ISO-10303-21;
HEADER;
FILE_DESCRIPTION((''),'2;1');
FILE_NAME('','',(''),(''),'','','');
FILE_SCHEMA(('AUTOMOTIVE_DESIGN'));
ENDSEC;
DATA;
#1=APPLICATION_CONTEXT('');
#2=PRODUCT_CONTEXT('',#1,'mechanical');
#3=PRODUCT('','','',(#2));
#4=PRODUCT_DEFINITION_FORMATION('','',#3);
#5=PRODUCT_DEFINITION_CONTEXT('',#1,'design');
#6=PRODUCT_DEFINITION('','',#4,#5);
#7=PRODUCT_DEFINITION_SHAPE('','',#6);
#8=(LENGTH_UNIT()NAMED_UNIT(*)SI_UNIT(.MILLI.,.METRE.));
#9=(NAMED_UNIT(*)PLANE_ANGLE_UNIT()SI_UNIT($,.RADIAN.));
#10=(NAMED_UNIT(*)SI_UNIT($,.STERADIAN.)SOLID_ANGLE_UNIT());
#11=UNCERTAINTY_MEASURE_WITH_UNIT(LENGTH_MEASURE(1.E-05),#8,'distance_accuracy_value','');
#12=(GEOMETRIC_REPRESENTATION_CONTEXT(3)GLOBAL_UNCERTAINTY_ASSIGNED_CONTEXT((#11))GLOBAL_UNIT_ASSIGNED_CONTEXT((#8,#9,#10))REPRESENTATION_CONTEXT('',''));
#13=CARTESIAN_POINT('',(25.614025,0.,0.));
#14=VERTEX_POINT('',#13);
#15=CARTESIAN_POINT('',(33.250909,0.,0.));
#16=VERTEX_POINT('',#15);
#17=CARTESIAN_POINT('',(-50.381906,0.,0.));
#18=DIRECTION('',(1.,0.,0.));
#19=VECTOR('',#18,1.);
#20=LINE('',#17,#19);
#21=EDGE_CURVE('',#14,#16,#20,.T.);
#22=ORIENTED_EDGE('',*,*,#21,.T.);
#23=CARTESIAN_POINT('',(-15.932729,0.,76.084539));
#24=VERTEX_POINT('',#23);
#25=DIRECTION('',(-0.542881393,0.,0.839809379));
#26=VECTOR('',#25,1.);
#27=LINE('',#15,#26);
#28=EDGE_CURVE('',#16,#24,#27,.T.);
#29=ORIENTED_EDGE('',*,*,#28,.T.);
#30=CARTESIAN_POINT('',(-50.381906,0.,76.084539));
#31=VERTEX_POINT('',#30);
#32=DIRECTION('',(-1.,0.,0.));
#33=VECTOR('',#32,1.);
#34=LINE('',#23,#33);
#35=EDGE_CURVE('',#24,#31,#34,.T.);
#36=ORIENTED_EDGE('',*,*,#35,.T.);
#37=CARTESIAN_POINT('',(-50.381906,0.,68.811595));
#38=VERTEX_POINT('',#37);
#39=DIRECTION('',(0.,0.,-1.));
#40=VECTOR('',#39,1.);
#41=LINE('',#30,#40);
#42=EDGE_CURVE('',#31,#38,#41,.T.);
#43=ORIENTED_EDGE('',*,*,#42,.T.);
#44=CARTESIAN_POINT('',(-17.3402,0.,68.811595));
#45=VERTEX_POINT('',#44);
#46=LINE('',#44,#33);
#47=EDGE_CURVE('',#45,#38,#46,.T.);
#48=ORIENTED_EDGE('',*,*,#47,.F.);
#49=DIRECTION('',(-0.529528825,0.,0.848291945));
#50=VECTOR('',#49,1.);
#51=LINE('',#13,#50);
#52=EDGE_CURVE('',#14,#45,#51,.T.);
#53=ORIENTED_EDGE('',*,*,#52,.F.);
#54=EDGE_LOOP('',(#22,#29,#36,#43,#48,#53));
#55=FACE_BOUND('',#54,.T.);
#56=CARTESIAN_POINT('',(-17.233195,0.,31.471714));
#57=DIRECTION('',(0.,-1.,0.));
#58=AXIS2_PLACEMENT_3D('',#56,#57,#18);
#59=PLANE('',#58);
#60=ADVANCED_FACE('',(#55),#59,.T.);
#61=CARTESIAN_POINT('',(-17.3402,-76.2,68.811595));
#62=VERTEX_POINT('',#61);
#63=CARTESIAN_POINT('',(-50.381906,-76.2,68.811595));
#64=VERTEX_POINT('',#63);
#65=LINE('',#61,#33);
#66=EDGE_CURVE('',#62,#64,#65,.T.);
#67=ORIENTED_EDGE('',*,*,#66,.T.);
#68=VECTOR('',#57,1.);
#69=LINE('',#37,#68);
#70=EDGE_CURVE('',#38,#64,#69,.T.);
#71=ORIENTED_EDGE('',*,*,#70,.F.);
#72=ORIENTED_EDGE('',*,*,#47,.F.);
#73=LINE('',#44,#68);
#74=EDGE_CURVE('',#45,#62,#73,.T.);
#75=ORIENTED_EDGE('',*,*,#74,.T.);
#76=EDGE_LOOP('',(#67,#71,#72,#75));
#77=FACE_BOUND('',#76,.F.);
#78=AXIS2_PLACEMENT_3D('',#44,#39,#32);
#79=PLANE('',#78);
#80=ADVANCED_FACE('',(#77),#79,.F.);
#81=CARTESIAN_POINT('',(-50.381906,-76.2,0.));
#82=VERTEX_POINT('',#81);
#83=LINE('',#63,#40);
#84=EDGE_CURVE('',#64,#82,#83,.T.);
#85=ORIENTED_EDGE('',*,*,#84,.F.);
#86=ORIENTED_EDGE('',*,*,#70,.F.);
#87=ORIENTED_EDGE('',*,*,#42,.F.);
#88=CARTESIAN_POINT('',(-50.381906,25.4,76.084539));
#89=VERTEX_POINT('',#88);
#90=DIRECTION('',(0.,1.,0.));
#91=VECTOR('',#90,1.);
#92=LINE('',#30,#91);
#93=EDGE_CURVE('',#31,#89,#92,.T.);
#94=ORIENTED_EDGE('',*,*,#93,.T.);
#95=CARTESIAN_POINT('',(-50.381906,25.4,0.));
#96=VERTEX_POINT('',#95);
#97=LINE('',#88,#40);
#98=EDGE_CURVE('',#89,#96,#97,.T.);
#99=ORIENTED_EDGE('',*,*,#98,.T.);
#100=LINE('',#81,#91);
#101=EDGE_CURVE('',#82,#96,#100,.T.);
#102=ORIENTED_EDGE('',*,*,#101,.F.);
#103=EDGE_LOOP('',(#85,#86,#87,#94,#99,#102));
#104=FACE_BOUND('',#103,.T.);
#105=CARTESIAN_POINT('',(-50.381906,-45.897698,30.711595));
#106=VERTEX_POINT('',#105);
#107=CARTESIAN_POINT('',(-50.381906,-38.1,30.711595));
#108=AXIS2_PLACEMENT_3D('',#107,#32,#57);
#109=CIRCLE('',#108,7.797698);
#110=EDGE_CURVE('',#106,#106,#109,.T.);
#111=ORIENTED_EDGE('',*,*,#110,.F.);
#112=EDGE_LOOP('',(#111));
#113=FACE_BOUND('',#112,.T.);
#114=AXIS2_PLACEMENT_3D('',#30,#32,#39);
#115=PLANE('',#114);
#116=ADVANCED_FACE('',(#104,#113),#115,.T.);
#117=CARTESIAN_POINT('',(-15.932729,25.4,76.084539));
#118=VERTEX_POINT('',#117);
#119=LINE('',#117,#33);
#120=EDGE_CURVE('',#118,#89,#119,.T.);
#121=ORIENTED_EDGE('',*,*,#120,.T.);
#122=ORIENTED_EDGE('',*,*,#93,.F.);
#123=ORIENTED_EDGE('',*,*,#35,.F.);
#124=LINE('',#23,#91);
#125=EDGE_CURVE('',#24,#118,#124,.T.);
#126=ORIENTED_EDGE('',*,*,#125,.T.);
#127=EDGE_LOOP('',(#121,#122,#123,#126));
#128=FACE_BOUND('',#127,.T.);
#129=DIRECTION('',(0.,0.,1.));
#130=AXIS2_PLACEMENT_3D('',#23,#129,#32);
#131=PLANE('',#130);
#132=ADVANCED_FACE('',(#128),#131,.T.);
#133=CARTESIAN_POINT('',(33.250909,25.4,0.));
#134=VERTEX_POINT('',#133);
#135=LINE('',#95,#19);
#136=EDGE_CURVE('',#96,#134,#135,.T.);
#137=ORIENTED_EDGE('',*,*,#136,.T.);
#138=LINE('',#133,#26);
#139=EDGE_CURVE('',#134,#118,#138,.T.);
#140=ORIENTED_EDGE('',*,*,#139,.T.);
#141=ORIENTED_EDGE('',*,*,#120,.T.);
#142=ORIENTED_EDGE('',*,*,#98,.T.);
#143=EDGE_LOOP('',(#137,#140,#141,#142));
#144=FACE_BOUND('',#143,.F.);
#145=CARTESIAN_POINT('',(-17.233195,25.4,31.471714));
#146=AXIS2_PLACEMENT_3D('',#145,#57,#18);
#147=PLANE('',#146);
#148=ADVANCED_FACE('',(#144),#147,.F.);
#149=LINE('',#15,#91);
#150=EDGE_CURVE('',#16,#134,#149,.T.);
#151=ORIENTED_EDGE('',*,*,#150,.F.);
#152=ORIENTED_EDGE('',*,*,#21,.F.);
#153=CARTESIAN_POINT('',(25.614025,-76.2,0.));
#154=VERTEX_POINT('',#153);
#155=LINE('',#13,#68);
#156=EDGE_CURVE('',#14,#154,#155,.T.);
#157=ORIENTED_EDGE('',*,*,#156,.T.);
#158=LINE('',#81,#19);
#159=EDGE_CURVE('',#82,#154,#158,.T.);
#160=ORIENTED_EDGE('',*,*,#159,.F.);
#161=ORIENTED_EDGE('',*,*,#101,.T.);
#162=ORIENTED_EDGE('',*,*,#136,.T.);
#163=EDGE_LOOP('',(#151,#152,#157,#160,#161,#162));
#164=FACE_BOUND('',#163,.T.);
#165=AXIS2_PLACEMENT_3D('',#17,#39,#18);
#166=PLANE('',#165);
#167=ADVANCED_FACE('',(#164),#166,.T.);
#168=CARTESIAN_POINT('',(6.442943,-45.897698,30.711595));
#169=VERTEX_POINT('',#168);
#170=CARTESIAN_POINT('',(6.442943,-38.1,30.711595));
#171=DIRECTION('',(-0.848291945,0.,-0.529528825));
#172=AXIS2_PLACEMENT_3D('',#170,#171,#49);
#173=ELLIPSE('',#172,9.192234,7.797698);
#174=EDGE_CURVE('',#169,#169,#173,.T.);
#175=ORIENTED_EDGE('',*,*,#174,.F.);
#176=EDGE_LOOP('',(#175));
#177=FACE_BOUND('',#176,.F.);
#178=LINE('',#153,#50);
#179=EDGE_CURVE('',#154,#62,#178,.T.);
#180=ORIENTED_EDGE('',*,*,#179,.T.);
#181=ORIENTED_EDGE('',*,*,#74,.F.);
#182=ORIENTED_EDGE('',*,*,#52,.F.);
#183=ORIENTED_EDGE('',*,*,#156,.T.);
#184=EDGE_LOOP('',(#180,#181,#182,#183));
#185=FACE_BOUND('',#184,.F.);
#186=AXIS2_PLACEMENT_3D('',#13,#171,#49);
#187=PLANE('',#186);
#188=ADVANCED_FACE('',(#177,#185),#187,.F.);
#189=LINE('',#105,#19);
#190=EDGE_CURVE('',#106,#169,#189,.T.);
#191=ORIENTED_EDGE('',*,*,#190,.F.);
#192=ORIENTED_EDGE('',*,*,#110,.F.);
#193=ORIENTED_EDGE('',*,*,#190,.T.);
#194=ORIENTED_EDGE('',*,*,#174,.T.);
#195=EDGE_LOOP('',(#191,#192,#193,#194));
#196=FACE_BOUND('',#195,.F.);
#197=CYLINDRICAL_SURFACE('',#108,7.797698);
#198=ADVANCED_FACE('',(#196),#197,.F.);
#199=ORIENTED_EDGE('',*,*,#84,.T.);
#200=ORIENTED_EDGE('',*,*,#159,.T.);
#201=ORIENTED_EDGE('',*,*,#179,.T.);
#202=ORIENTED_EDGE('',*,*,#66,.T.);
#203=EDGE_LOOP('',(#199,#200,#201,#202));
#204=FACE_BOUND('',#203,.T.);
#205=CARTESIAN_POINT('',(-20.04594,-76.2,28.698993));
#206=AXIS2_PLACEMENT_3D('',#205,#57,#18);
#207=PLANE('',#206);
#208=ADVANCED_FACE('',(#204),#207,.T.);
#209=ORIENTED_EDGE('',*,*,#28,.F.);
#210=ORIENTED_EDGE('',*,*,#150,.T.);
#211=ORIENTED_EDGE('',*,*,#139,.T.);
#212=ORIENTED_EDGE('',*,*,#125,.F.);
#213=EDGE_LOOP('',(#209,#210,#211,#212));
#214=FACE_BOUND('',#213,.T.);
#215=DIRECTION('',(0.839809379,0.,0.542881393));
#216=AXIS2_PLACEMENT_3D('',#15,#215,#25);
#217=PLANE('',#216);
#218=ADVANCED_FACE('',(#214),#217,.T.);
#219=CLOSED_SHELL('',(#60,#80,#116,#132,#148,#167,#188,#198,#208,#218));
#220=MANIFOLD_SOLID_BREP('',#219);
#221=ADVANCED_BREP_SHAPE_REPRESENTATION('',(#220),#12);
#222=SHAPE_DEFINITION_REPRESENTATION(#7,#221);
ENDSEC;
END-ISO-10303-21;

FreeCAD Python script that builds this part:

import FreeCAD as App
import Part
import Sketcher
Q = App.Units.Quantity


def add_polygon(sketch, points):
    """Adds a closed chain of lines whose ends are joined by coincident constraints."""
    first, n = sketch.GeometryCount, len(points)
    for a, b in zip(points, points[1:] + points[:1]):
        sketch.addGeometry(Part.LineSegment(App.Vector(*a, 0), App.Vector(*b, 0)), False)
    for i in range(n):
        sketch.addConstraint(Sketcher.Constraint("Coincident", first + i, 2, first + (i + 1) % n, 1))

doc = App.newDocument("Part")
body = doc.addObject("PartDesign::Body", "Body")

sketch1 = body.newObject("Sketcher::SketchObject", "Sketch")
sketch1.AttachmentSupport = (doc.getObject("XZ_Plane"), [""])
sketch1.MapMode = "FlatFace"
add_polygon(sketch1, [(-50, 0), (26, 0), (-17, 69), (-50, 69)])
sketch1.addConstraint([
    Sketcher.Constraint("Horizontal", 0),
    Sketcher.Constraint("Horizontal", 2),
    Sketcher.Constraint("Vertical", 3),
    Sketcher.Constraint("PointOnObject", 0, 2, -1),
    Sketcher.Constraint("DistanceX", 0, 1, 0, 2, 75.995931),
    Sketcher.Constraint("DistanceX", 1, 2, -1, 1, 17.3402),
    Sketcher.Constraint("DistanceX", 2, 2, 2, 1, 33.041706),
    Sketcher.Constraint("DistanceY", 3, 2, 3, 1, 68.811595),
])
pad1 = body.newObject("PartDesign::Pad", "Pad")
pad1.Profile = sketch1
pad1.Length = Q("3 in")

sketch2 = body.newObject("Sketcher::SketchObject", "Sketch001")
sketch2.AttachmentSupport = (doc.getObject("XZ_Plane"), [""])
sketch2.MapMode = "FlatFace"
add_polygon(sketch2, [(-50, 0), (33, 0), (-16, 76), (-50, 76)])
sketch2.addConstraint([
    Sketcher.Constraint("Horizontal", 0),
    Sketcher.Constraint("Horizontal", 2),
    Sketcher.Constraint("Vertical", 3),
    Sketcher.Constraint("PointOnObject", 0, 2, -1),
    Sketcher.Constraint("Angle", 1, Q("122.880004 deg")),
    Sketcher.Constraint("DistanceY", 3, 2, 3, 1, 76.084539),
    Sketcher.Constraint("DistanceX", 0, 1, 0, 2, 83.632815),
    Sketcher.Constraint("DistanceX", -1, 1, 0, 2, 33.250909),
])
pad2 = body.newObject("PartDesign::Pad", "Pad001")
pad2.Profile = sketch2
pad2.Length = Q("1 in")
pad2.Reversed = True

sketch3 = body.newObject("Sketcher::SketchObject", "Sketch002")
sketch3.AttachmentSupport = (doc.getObject("YZ_Plane"), [""])
sketch3.MapMode = "FlatFace"
sketch3.AttachmentOffset = App.Placement(App.Vector(0, 0, -50.381906), App.Rotation())
sketch3.addGeometry(Part.Circle(App.Vector(-38, 31, 0), App.Vector(0, 0, 1), 8), False)
sketch3.addConstraint([
    Sketcher.Constraint("DistanceX", 0, 3, -1, 1, Q("1.5 in")),
    Sketcher.Constraint("Diameter", 0, 15.595396),
    Sketcher.Constraint("DistanceY", -1, 1, 0, 3, 30.711595),
])
pocket1 = body.newObject("PartDesign::Pocket", "Pocket")
pocket1.Profile = sketch3
pocket1.Length = Q("5 in")
pocket1.Reversed = True

doc.recompute()
